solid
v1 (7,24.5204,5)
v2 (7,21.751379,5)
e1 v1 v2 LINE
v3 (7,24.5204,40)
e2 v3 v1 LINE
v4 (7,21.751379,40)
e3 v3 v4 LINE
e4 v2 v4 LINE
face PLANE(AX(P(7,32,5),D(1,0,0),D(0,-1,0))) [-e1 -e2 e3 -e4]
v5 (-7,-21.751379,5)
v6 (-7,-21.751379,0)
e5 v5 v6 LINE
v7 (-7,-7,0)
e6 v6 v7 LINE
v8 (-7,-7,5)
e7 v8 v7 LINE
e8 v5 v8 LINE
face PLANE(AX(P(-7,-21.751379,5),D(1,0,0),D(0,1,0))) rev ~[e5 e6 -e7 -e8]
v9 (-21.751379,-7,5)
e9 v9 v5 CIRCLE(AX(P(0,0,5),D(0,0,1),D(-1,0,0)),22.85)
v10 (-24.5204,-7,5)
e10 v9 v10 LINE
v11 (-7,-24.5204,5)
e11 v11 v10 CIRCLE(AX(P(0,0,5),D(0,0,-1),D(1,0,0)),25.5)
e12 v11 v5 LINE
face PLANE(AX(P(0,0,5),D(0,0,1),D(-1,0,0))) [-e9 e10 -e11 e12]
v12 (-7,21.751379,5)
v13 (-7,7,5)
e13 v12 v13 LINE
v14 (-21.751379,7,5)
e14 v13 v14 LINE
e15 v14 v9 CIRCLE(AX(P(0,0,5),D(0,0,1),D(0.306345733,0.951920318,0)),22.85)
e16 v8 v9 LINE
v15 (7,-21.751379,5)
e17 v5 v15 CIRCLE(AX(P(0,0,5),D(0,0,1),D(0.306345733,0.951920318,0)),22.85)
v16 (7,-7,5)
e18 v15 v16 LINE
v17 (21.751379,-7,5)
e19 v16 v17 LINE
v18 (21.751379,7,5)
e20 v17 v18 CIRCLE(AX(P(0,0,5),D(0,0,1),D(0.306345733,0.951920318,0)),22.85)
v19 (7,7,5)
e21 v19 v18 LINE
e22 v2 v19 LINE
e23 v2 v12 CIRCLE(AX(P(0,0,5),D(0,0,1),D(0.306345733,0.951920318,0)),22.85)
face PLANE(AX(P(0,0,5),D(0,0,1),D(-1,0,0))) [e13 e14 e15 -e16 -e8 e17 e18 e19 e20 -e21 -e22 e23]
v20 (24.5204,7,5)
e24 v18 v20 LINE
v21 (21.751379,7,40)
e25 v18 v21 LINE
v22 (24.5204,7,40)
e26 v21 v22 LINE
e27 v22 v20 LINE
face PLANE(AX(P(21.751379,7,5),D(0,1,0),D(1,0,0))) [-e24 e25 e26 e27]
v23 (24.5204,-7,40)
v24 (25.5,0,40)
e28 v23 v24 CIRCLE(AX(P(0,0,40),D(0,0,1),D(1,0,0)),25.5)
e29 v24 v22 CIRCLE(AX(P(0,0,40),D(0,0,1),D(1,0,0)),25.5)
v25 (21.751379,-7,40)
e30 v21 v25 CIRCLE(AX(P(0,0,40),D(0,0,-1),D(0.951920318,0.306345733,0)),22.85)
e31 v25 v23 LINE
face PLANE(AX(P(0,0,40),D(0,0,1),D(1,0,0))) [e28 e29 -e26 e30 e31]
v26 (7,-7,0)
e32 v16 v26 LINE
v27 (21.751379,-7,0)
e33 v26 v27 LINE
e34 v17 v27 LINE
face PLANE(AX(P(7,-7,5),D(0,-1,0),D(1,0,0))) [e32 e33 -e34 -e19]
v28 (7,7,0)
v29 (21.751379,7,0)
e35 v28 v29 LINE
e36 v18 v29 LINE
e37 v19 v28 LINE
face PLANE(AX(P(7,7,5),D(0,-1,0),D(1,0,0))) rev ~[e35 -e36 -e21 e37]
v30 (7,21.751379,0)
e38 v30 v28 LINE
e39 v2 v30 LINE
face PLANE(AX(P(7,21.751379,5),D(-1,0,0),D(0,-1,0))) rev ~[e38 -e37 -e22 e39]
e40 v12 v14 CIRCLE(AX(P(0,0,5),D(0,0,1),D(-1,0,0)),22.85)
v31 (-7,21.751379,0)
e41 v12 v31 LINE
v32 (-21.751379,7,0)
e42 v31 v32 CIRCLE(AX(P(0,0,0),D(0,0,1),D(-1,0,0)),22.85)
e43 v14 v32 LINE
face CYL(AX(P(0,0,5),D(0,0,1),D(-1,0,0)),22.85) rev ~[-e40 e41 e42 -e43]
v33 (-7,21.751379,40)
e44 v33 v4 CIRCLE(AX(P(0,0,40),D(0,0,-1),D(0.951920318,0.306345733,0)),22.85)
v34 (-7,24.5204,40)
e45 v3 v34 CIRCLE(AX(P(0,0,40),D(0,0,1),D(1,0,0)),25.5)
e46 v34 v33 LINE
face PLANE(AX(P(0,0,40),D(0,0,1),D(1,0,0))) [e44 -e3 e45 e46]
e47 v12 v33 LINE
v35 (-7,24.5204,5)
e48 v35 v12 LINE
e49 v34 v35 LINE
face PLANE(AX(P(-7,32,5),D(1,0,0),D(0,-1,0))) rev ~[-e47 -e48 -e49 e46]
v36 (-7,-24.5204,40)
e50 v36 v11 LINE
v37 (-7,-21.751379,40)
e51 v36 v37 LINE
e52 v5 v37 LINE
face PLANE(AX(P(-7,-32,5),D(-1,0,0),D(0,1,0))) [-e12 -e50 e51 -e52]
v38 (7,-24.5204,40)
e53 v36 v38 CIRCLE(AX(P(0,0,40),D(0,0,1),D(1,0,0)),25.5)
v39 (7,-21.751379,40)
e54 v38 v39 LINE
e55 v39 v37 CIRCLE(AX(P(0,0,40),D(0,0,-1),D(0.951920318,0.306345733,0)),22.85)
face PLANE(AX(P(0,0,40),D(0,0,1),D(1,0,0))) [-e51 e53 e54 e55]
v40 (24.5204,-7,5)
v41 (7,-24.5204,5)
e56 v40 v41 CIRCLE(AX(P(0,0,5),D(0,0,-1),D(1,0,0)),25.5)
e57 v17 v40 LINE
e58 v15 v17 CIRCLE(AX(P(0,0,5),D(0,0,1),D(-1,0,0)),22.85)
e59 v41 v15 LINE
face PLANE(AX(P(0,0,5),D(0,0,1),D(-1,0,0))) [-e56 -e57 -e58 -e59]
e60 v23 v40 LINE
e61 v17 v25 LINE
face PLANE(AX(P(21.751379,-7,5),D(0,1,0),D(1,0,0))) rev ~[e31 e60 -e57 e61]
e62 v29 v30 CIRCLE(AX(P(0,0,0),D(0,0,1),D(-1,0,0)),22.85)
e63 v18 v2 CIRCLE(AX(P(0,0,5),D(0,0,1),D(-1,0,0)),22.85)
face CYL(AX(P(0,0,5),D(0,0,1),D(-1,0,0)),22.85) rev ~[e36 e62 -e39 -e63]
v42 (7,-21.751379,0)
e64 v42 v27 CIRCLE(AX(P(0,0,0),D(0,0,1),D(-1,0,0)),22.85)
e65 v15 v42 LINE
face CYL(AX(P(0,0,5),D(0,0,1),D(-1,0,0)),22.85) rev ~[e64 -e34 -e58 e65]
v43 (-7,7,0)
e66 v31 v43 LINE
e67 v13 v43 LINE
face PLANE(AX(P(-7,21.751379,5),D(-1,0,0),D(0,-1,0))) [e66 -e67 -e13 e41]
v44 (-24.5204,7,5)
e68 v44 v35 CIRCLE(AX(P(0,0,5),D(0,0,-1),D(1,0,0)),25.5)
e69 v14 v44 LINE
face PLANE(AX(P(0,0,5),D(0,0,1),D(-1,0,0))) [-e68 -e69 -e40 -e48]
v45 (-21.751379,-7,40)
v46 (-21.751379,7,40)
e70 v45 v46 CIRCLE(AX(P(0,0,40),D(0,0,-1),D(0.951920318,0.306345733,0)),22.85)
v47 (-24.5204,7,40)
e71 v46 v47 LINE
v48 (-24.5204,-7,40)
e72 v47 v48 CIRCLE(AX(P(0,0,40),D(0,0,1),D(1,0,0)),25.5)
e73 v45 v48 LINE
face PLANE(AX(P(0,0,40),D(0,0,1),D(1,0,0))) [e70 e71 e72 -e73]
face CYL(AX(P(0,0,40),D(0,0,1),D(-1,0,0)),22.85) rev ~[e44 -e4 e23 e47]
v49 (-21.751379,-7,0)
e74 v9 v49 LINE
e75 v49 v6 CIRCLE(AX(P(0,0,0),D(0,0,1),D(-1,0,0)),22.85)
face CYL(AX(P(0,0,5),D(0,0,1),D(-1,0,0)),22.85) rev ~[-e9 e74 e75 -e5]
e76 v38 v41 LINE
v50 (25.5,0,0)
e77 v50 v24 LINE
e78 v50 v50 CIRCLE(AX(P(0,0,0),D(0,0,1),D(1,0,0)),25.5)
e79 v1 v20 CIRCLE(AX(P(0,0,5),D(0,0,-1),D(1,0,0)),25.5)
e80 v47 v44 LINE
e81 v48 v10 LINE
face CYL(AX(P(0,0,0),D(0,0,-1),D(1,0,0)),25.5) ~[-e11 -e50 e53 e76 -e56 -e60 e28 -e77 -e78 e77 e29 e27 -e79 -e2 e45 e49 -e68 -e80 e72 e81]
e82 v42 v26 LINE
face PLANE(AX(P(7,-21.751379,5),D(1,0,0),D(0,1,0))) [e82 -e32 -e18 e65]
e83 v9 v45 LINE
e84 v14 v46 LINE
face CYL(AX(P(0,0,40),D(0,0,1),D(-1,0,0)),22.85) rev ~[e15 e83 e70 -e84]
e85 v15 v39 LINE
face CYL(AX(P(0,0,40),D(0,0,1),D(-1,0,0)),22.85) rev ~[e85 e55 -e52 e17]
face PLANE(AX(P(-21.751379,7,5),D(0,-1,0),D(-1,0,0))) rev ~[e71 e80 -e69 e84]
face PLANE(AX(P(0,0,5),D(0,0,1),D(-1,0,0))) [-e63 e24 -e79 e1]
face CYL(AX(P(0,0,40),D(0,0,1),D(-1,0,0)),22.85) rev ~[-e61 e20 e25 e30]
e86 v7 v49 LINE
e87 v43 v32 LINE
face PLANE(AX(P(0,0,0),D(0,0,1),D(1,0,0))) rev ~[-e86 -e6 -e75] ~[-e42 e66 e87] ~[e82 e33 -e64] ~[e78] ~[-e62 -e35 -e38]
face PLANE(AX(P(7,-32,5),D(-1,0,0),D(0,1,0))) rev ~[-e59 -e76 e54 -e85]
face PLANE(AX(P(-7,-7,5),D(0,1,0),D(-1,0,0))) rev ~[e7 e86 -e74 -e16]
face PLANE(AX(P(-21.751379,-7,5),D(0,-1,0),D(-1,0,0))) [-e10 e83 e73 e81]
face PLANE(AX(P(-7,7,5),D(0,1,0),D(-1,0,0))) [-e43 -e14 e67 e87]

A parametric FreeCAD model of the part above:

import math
import FreeCAD as App
import Part
import Sketcher

V = App.Vector

doc = App.newDocument("Part")
body = doc.addObject("PartDesign::Body", "Body")

# Sketch on XY plane
sketch1 = body.newObject("Sketcher::SketchObject", "Sketch")
sketch1.AttachmentSupport = (doc.getObject("XY_Plane"), [""])
sketch1.MapMode = "FlatFace"
sketch1.addGeometry(Part.Circle(V(0, 0, 0), V(0, 0, 1), 26), False)
sketch1.addConstraint(Sketcher.Constraint("Coincident", 0, 3, -1, 1))
sketch1.addConstraint(Sketcher.Constraint("Diameter", 0, 51.0))
pad1 = body.newObject("PartDesign::Pad", "Pad")
pad1.Profile = sketch1
pad1.Length = 40

# Sketch on XY plane
sketch2 = body.newObject("Sketcher::SketchObject", "Sketch001")
sketch2.AttachmentSupport = (doc.getObject("XY_Plane"), [""])
sketch2.MapMode = "FlatFace"
sketch2.AttachmentOffset = App.Placement(V(0, 0, 40), App.Rotation())
sketch2.addGeometry(Part.Circle(V(0, 0, 0), V(0, 0, 1), 23), False)
sketch2.addConstraint(Sketcher.Constraint("Coincident", 0, 3, -1, 1))
sketch2.addConstraint(Sketcher.Constraint("Diameter", 0, 45.7))
pocket1 = body.newObject("PartDesign::Pocket", "Pocket")
pocket1.Profile = sketch2
pocket1.Length = 35

# Sketch on XY plane
sketch3 = body.newObject("Sketcher::SketchObject", "Sketch002")
sketch3.AttachmentSupport = (doc.getObject("XY_Plane"), [""])
sketch3.MapMode = "FlatFace"
sketch3.AttachmentOffset = App.Placement(V(0, 0, 5), App.Rotation())
sketch3.addGeometry(Part.LineSegment(V(7, 32, 0), V(7, 22, 0)), False)
sketch3.addGeometry(Part.ArcOfCircle(Part.Circle(V(0, 0, 0), V(0, 0, 1), 23), math.radians(18), math.radians(72)), False)
sketch3.addGeometry(Part.LineSegment(V(22, 7, 0), V(32, 7, 0)), False)
sketch3.addGeometry(Part.LineSegment(V(32, 7, 0), V(32, 32, 0)), False)
sketch3.addGeometry(Part.LineSegment(V(32, 32, 0), V(7, 32, 0)), False)
sketch3.addConstraint(Sketcher.Constraint("Coincident", 0, 2, 1, 2))
sketch3.addConstraint(Sketcher.Constraint("Coincident", 1, 1, 2, 1))
sketch3.addConstraint(Sketcher.Constraint("Coincident", 2, 2, 3, 1))
sketch3.addConstraint(Sketcher.Constraint("Coincident", 3, 2, 4, 1))
sketch3.addConstraint(Sketcher.Constraint("Coincident", 4, 2, 0, 1))
sketch3.addConstraint(Sketcher.Constraint("Vertical", 0))
sketch3.addConstraint(Sketcher.Constraint("Horizontal", 2))
sketch3.addConstraint(Sketcher.Constraint("Vertical", 3))
sketch3.addConstraint(Sketcher.Constraint("Horizontal", 4))
sketch3.addConstraint(Sketcher.Constraint("Coincident", 1, 3, -1, 1))
sketch3.addConstraint(Sketcher.Constraint("Equal", 2, 0))
sketch3.addConstraint(Sketcher.Constraint("Equal", 4, 3))
sketch3.addConstraint(Sketcher.Constraint("DistanceX", 4, 2, 4, 1, 25.0))
sketch3.addConstraint(Sketcher.Constraint("Radius", 1, 22.85))
sketch3.addConstraint(Sketcher.Constraint("DistanceX", -1, 1, 0, 2, 7.0))
pocket2 = body.newObject("PartDesign::Pocket", "Pocket001")
pocket2.Profile = sketch3
pocket2.Length = 35
pocket2.Reversed = True

# Sketch on XY plane
sketch4 = body.newObject("Sketcher::SketchObject", "Sketch003")
sketch4.AttachmentSupport = (doc.getObject("XY_Plane"), [""])
sketch4.MapMode = "FlatFace"
sketch4.AttachmentOffset = App.Placement(V(0, 0, 5), App.Rotation())
sketch4.addGeometry(Part.LineSegment(V(-32, 7, 0), V(-22, 7, 0)), False)
sketch4.addGeometry(Part.ArcOfCircle(Part.Circle(V(0, 0, 0), V(0, 0, 1), 23), math.radians(108), math.radians(162)), False)
sketch4.addGeometry(Part.LineSegment(V(-7, 22, 0), V(-7, 32, 0)), False)
sketch4.addGeometry(Part.LineSegment(V(-7, 32, 0), V(-32, 32, 0)), False)
sketch4.addGeometry(Part.LineSegment(V(-32, 32, 0), V(-32, 7, 0)), False)
sketch4.addConstraint(Sketcher.Constraint("Coincident", 0, 2, 1, 2))
sketch4.addConstraint(Sketcher.Constraint("Coincident", 1, 1, 2, 1))
sketch4.addConstraint(Sketcher.Constraint("Coincident", 2, 2, 3, 1))
sketch4.addConstraint(Sketcher.Constraint("Coincident", 3, 2, 4, 1))
sketch4.addConstraint(Sketcher.Constraint("Coincident", 4, 2, 0, 1))
sketch4.addConstraint(Sketcher.Constraint("Horizontal", 0))
sketch4.addConstraint(Sketcher.Constraint("Vertical", 2))
sketch4.addConstraint(Sketcher.Constraint("Horizontal", 3))
sketch4.addConstraint(Sketcher.Constraint("Vertical", 4))
sketch4.addConstraint(Sketcher.Constraint("Coincident", 1, 3, -1, 1))
sketch4.addConstraint(Sketcher.Constraint("Equal", 0, 2))
sketch4.addConstraint(Sketcher.Constraint("Equal", 3, 4))
sketch4.addConstraint(Sketcher.Constraint("DistanceX", 3, 2, 3, 1, 25.0))
sketch4.addConstraint(Sketcher.Constraint("Radius", 1, 22.85))
sketch4.addConstraint(Sketcher.Constraint("DistanceY", -1, 1, 0, 2, 7.0))
pocket3 = body.newObject("PartDesign::Pocket", "Pocket002")
pocket3.Profile = sketch4
pocket3.Length = 35
pocket3.Reversed = True

# Sketch on XY plane
sketch5 = body.newObject("Sketcher::SketchObject", "Sketch004")
sketch5.AttachmentSupport = (doc.getObject("XY_Plane"), [""])
sketch5.MapMode = "FlatFace"
sketch5.AttachmentOffset = App.Placement(V(0, 0, 5), App.Rotation())
sketch5.addGeometry(Part.ArcOfCircle(Part.Circle(V(0, 0, 0), V(0, 0, 1), 23), math.radians(-162), math.radians(-108)), False)
sketch5.addGeometry(Part.LineSegment(V(-22, -7, 0), V(-32, -7, 0)), False)
sketch5.addGeometry(Part.LineSegment(V(-32, -7, 0), V(-32, -32, 0)), False)
sketch5.addGeometry(Part.LineSegment(V(-32, -32, 0), V(-7, -32, 0)), False)
sketch5.addGeometry(Part.LineSegment(V(-7, -32, 0), V(-7, -22, 0)), False)
sketch5.addGeometry(Part.ArcOfCircle(Part.Circle(V(0, 0, 0), V(0, 0, 1), 23), math.radians(-72), math.radians(-18)), False)
sketch5.addGeometry(Part.LineSegment(V(7, -22, 0), V(7, -32, 0)), False)
sketch5.addGeometry(Part.LineSegment(V(7, -32, 0), V(32, -32, 0)), False)
sketch5.addGeometry(Part.LineSegment(V(32, -32, 0), V(32, -7, 0)), False)
sketch5.addGeometry(Part.LineSegment(V(32, -7, 0), V(22, -7, 0)), False)
sketch5.addConstraint(Sketcher.Constraint("Coincident", 0, 1, 1, 1))
sketch5.addConstraint(Sketcher.Constraint("Coincident", 1, 2, 2, 1))
sketch5.addConstraint(Sketcher.Constraint("Coincident", 2, 2, 3, 1))
sketch5.addConstraint(Sketcher.Constraint("Coincident", 3, 2, 4, 1))
sketch5.addConstraint(Sketcher.Constraint("Coincident", 4, 2, 0, 2))
sketch5.addConstraint(Sketcher.Constraint("Coincident", 5, 1, 6, 1))
sketch5.addConstraint(Sketcher.Constraint("Coincident", 6, 2, 7, 1))
sketch5.addConstraint(Sketcher.Constraint("Coincident", 7, 2, 8, 1))
sketch5.addConstraint(Sketcher.Constraint("Coincident", 8, 2, 9, 1))
sketch5.addConstraint(Sketcher.Constraint("Coincident", 9, 2, 5, 2))
sketch5.addConstraint(Sketcher.Constraint("Horizontal", 1))
sketch5.addConstraint(Sketcher.Constraint("Vertical", 2))
sketch5.addConstraint(Sketcher.Constraint("Horizontal", 3))
sketch5.addConstraint(Sketcher.Constraint("Vertical", 4))
sketch5.addConstraint(Sketcher.Constraint("Vertical", 6))
sketch5.addConstraint(Sketcher.Constraint("Horizontal", 7))
sketch5.addConstraint(Sketcher.Constraint("Vertical", 8))
sketch5.addConstraint(Sketcher.Constraint("Horizontal", 9))
sketch5.addConstraint(Sketcher.Constraint("Coincident", 0, 3, -1, 1))
sketch5.addConstraint(Sketcher.Constraint("Coincident", 5, 3, -1, 1))
sketch5.addConstraint(Sketcher.Constraint("Equal", 0, 5))
sketch5.addConstraint(Sketcher.Constraint("Symmetric", 3, 2, 6, 2, -2))
sketch5.addConstraint(Sketcher.Constraint("Symmetric", 1, 2, 8, 2, -2))
sketch5.addConstraint(Sketcher.Constraint("Equal", 7, 2))
sketch5.addConstraint(Sketcher.Constraint("Equal", 9, 4))
sketch5.addConstraint(Sketcher.Constraint("DistanceX", 3, 1, 3, 2, 25.0))
sketch5.addConstraint(Sketcher.Constraint("Radius", 0, 22.85))
sketch5.addConstraint(Sketcher.Constraint("DistanceY", 0, 1, -1, 1, 7.0))
pocket4 = body.newObject("PartDesign::Pocket", "Pocket003")
pocket4.Profile = sketch5
pocket4.Length = 35
pocket4.Reversed = True

# Sketch on XY plane
sketch6 = body.newObject("Sketcher::SketchObject", "Sketch005")
sketch6.AttachmentSupport = (doc.getObject("XY_Plane"), [""])
sketch6.MapMode = "FlatFace"
sketch6.AttachmentOffset = App.Placement(V(0, 0, 5), App.Rotation())
sketch6.addGeometry(Part.LineSegment(V(-7, -7, 0), V(-22, -7, 0)), False)
sketch6.addGeometry(Part.ArcOfCircle(Part.Circle(V(0, 0, 0), V(0, 0, 1), 23), math.radians(-162), math.radians(-108)), False)
sketch6.addGeometry(Part.LineSegment(V(-7, -22, 0), V(-7, -7, 0)), False)
sketch6.addGeometry(Part.ArcOfCircle(Part.Circle(V(0, 0, 0), V(0, 0, 1), 23), math.radians(108), math.radians(162)), False)
sketch6.addGeometry(Part.LineSegment(V(-22, 7, 0), V(-7, 7, 0)), False)
sketch6.addGeometry(Part.LineSegment(V(-7, 7, 0), V(-7, 22, 0)), False)
sketch6.addGeometry(Part.LineSegment(V(7, -7, 0), V(7, -22, 0)), False)
sketch6.addGeometry(Part.ArcOfCircle(Part.Circle(V(0, 0, 0), V(0, 0, 1), 23), math.radians(-72), math.radians(-18)), False)
sketch6.addGeometry(Part.LineSegment(V(22, -7, 0), V(7, -7, 0)), False)
sketch6.addGeometry(Part.ArcOfCircle(Part.Circle(V(0, 0, 0), V(0, 0, 1), 23), math.radians(18), math.radians(72)), False)
sketch6.addGeometry(Part.LineSegment(V(7, 22, 0), V(7, 7, 0)), False)
sketch6.addGeometry(Part.LineSegment(V(7, 7, 0), V(22, 7, 0)), False)
sketch6.addConstraint(Sketcher.Constraint("Coincident", 0, 2, 1, 1))
sketch6.addConstraint(Sketcher.Constraint("Coincident", 1, 2, 2, 1))
sketch6.addConstraint(Sketcher.Constraint("Coincident", 2, 2, 0, 1))
sketch6.addConstraint(Sketcher.Constraint("Coincident", 3, 2, 4, 1))
sketch6.addConstraint(Sketcher.Constraint("Coincident", 4, 2, 5, 1))
sketch6.addConstraint(Sketcher.Constraint("Coincident", 5, 2, 3, 1))
sketch6.addConstraint(Sketcher.Constraint("Coincident", 6, 2, 7, 1))
sketch6.addConstraint(Sketcher.Constraint("Coincident", 7, 2, 8, 1))
sketch6.addConstraint(Sketcher.Constraint("Coincident", 8, 2, 6, 1))
sketch6.addConstraint(Sketcher.Constraint("Coincident", 9, 2, 10, 1))
sketch6.addConstraint(Sketcher.Constraint("Coincident", 10, 2, 11, 1))
sketch6.addConstraint(Sketcher.Constraint("Coincident", 11, 2, 9, 1))
sketch6.addConstraint(Sketcher.Constraint("Horizontal", 0))
sketch6.addConstraint(Sketcher.Constraint("Vertical", 2))
sketch6.addConstraint(Sketcher.Constraint("Horizontal", 4))
sketch6.addConstraint(Sketcher.Constraint("Vertical", 5))
sketch6.addConstraint(Sketcher.Constraint("Vertical", 6))
sketch6.addConstraint(Sketcher.Constraint("Horizontal", 8))
sketch6.addConstraint(Sketcher.Constraint("Vertical", 10))
sketch6.addConstraint(Sketcher.Constraint("Horizontal", 11))
sketch6.addConstraint(Sketcher.Constraint("Coincident", 1, 3, -1, 1))
sketch6.addConstraint(Sketcher.Constraint("Coincident", 3, 3, -1, 1))
sketch6.addConstraint(Sketcher.Constraint("Coincident", 7, 3, -1, 1))
sketch6.addConstraint(Sketcher.Constraint("Coincident", 9, 3, -1, 1))
sketch6.addConstraint(Sketcher.Constraint("Equal", 1, 3))
sketch6.addConstraint(Sketcher.Constraint("Equal", 3, 7))
sketch6.addConstraint(Sketcher.Constraint("Equal", 7, 9))
sketch6.addConstraint(Sketcher.Constraint("Symmetric", 4, 2, 8, 2, -1, 1))
sketch6.addConstraint(Sketcher.Constraint("Symmetric", 2, 2, 10, 2, -1, 1))
sketch6.addConstraint(Sketcher.Constraint("Symmetric", 2, 2, 8, 2, -2))
sketch6.addConstraint(Sketcher.Constraint("Equal", 11, 2))
sketch6.addConstraint(Sketcher.Constraint("Radius", 1, 22.85))
sketch6.addConstraint(Sketcher.Constraint("DistanceY", 0, 2, -1, 1, 7.0))
pocket5 = body.newObject("PartDesign::Pocket", "Pocket004")
pocket5.Profile = sketch6
pocket5.Length = 5

doc.recompute()
